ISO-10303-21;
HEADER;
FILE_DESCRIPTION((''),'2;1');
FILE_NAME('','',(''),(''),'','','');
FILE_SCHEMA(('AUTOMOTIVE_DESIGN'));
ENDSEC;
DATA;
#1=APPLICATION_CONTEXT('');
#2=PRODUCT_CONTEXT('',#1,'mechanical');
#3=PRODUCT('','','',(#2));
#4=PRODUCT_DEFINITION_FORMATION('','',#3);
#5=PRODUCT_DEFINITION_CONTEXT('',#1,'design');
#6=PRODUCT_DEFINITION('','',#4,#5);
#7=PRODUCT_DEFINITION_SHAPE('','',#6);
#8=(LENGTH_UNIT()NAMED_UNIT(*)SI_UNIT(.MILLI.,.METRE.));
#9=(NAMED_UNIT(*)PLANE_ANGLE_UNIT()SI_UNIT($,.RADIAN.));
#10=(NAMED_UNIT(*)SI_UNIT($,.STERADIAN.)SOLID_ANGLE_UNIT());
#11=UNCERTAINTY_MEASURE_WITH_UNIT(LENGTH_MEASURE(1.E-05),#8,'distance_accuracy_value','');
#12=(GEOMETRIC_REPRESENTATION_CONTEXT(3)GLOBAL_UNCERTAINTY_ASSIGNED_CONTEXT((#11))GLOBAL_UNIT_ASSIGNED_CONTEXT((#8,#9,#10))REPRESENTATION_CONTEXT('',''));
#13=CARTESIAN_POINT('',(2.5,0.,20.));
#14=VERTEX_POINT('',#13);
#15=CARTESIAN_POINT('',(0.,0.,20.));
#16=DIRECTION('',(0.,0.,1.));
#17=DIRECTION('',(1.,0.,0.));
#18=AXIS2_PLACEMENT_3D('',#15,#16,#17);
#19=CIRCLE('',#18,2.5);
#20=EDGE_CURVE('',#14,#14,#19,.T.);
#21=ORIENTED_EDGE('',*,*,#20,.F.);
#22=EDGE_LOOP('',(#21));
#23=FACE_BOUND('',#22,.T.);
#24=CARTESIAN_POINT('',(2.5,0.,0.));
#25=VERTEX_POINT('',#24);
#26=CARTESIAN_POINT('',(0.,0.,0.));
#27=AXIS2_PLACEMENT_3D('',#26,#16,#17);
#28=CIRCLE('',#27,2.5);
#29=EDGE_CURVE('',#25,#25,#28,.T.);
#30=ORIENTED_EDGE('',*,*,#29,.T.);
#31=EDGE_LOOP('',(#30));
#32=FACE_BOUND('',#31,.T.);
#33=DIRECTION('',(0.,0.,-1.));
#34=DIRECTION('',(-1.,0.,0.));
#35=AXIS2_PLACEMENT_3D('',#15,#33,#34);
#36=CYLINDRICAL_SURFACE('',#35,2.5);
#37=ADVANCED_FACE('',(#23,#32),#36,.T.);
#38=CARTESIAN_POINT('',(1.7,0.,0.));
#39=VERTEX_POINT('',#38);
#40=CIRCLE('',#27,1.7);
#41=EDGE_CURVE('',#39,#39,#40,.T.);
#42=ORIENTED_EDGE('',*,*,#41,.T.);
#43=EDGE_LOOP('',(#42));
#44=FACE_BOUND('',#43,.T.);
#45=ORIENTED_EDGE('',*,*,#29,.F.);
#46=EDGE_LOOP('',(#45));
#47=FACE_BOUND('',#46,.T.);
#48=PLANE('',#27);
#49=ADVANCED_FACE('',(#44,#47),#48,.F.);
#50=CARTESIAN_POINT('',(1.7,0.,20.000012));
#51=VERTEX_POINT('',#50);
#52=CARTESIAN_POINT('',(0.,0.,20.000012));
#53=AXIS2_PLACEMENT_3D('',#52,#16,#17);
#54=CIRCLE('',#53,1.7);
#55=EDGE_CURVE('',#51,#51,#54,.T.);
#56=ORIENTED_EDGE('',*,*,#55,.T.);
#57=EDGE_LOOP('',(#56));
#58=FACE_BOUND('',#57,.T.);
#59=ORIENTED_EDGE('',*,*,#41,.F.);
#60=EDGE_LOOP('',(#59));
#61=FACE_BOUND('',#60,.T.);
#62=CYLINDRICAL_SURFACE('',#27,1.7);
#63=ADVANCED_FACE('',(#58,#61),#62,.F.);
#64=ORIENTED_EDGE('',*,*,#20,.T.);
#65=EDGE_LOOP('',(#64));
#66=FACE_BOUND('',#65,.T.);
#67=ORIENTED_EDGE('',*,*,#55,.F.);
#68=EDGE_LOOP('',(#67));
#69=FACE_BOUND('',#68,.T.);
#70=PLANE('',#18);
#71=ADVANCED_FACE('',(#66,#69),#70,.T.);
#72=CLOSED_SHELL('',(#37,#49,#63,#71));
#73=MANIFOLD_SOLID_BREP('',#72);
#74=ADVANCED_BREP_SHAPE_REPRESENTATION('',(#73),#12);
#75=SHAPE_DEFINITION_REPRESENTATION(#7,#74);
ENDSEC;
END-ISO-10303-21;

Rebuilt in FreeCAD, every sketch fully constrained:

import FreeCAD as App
import Part
import Sketcher

V = App.Vector
Q = App.Units.Quantity

doc = App.newDocument("Part")
body = doc.addObject("PartDesign::Body", "Body")

sketch1 = doc.addObject("Sketcher::SketchObject", "Sketch")
body.addObject(sketch1)
sketch1.AttachmentSupport = (doc.XY_Plane, [""])
sketch1.MapMode = "FlatFace"
sketch1.addGeometry(Part.Circle(V(0, 0, 0), V(0, 0, 1), 2.5), False)
sketch1.addConstraint(Sketcher.Constraint("Coincident", 0, 3, -1, 1))
sketch1.addConstraint(Sketcher.Constraint("Diameter", 0, Q("5 mm")))
pad1 = doc.addObject("PartDesign::Pad", "Pad")
body.addObject(pad1)
pad1.Profile = sketch1
pad1.Length = 20

sketch2 = doc.addObject("Sketcher::SketchObject", "Sketch001")
body.addObject(sketch2)
sketch2.AttachmentSupport = (doc.XY_Plane, [""])
sketch2.MapMode = "FlatFace"
sketch2.AttachmentOffset = App.Placement(V(0, 0, 20), App.Rotation())
sketch2.addGeometry(Part.Circle(V(0, 0, 0), V(0, 0, 1), 1.7), False)
sketch2.addConstraint(Sketcher.Constraint("Coincident", 0, 3, -1, 1))
sketch2.addConstraint(Sketcher.Constraint("Diameter", 0, Q("3.4 mm")))
pocket1 = doc.addObject("PartDesign::Pocket", "Pocket")
body.addObject(pocket1)
pocket1.Profile = sketch2
pocket1.Type = "ThroughAll"
pocket1.Midplane = True

doc.recompute()
